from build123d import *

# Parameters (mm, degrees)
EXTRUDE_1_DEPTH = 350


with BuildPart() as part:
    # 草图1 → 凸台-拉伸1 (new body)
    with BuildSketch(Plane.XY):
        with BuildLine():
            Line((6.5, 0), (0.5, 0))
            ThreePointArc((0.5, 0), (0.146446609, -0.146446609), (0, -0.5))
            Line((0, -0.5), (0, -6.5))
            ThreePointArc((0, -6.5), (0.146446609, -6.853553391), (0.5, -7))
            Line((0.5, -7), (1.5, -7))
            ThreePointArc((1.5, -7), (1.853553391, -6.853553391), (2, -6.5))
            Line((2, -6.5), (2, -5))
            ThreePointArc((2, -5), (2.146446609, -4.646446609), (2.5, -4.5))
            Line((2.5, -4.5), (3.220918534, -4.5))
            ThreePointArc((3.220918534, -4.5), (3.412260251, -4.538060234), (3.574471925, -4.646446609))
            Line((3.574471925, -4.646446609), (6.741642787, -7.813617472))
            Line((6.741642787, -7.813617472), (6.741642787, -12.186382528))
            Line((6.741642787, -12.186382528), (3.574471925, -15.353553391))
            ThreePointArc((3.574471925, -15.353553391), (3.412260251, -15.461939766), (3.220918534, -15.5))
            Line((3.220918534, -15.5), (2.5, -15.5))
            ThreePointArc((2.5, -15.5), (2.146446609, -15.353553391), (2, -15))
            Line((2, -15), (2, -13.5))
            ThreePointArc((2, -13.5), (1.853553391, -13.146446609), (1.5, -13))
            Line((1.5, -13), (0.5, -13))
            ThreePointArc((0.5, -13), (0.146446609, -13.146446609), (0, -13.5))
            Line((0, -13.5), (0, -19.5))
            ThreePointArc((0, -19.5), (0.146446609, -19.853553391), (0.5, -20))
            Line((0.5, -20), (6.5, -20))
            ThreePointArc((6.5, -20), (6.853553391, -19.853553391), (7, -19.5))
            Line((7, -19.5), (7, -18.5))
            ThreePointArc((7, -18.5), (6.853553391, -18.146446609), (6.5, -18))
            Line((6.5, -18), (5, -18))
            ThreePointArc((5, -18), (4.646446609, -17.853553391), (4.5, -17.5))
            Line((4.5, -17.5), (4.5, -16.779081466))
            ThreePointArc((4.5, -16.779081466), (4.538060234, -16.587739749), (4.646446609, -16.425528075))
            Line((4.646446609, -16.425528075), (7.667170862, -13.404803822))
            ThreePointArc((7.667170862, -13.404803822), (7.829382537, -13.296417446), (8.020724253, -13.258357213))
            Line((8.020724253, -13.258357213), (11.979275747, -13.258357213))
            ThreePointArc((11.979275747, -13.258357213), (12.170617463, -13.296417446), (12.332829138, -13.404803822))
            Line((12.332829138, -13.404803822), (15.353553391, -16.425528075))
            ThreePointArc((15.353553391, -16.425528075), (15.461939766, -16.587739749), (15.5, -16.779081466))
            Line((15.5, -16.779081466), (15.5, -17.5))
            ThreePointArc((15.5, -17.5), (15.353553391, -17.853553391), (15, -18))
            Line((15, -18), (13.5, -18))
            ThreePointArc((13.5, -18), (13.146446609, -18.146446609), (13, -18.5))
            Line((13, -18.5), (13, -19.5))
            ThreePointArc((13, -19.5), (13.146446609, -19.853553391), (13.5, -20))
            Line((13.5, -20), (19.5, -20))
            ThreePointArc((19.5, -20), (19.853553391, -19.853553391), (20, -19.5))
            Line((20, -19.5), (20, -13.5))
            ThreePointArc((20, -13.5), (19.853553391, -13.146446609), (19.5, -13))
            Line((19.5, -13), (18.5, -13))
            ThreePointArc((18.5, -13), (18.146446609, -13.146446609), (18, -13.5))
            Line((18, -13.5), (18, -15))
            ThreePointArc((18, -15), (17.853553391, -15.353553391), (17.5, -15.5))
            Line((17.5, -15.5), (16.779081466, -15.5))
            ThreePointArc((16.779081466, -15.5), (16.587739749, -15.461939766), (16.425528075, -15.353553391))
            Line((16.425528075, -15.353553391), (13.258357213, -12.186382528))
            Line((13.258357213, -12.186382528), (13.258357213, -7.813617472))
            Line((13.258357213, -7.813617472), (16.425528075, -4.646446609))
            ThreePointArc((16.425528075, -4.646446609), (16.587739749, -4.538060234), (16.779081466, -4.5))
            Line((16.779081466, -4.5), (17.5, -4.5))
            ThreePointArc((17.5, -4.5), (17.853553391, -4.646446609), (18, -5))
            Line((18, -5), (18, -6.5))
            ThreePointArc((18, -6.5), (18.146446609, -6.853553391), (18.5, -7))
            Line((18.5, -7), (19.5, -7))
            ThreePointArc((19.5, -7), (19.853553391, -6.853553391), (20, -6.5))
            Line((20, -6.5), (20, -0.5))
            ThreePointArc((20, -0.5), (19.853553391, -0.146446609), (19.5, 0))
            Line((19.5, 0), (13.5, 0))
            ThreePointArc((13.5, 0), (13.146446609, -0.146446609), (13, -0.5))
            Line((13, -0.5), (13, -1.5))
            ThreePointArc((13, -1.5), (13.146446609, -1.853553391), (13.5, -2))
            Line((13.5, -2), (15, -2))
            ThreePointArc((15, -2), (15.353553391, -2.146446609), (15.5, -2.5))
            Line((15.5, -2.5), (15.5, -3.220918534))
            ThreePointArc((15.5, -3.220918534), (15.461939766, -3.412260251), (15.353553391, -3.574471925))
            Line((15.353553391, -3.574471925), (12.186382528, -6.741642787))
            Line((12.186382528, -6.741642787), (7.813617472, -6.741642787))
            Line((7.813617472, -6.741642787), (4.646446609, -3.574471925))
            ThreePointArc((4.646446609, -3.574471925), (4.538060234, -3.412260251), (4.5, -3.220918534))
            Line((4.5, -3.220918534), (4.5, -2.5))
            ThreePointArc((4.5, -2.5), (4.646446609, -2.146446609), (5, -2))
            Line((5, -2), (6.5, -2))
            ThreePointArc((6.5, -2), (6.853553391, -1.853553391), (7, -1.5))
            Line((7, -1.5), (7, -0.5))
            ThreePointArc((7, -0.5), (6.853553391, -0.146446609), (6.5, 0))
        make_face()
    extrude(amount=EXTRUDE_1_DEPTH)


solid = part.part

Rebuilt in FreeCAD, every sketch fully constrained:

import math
import FreeCAD as App
import Part
import Sketcher

V = App.Vector
Q = App.Units.Quantity

doc = App.newDocument("Part")
params = doc.addObject("Spreadsheet::Sheet", "Params")
for row, (alias, value) in enumerate([
    ("sketch1_radius", "0.5 mm"),
    ("sketch1_width", "6 mm"),
    ("sketch1_width2", "1 mm"),
    ("sketch1_width3", "1.5 mm"),
    ("pad1_length", "350 mm"),
], start=1):
    params.set(f"A{row}", alias)
    params.set(f"B{row}", "=" + value)
    params.setAlias(f"B{row}", alias)

body = doc.addObject("PartDesign::Body", "Body")

# Sketch on XY plane
sketch1 = body.newObject("Sketcher::SketchObject", "Sketch")
sketch1.AttachmentSupport = (doc.getObject("XY_Plane"), [""])
sketch1.MapMode = "FlatFace"
sketch1.addGeometry([
    Part.LineSegment(V(6.5, 0, 0), V(0.5, 0, 0)),  # 0
    Part.ArcOfCircle(Part.Circle(V(0.5, -0.5, 0), V(0, 0, 1), 0.5), math.radians(90), math.radians(180)),  # 1
    Part.LineSegment(V(0, -0.5, 0), V(0, -6.5, 0)),  # 2
    Part.ArcOfCircle(Part.Circle(V(0.5, -6.5, 0), V(0, 0, 1), 0.5), math.radians(180), math.radians(270)),  # 3
    Part.LineSegment(V(0.5, -7, 0), V(1.5, -7, 0)),  # 4
    Part.ArcOfCircle(Part.Circle(V(1.5, -6.5, 0), V(0, 0, 1), 0.5), math.radians(-90), math.radians(0)),  # 5
    Part.LineSegment(V(2, -6.5, 0), V(2, -5, 0)),  # 6
    Part.ArcOfCircle(Part.Circle(V(2.5, -5, 0), V(0, 0, 1), 0.5), math.radians(90), math.radians(180)),  # 7
    Part.LineSegment(V(2.5, -4.5, 0), V(3.220919, -4.5, 0)),  # 8
    Part.ArcOfCircle(Part.Circle(V(3.220919, -5, 0), V(0, 0, 1), 0.5), math.radians(45), math.radians(90)),  # 9
    Part.LineSegment(V(3.574472, -4.646447, 0), V(6.741643, -7.813617, 0)),  # 10
    Part.LineSegment(V(6.741643, -7.813617, 0), V(6.741643, -12.186383, 0)),  # 11
    Part.LineSegment(V(6.741643, -12.186383, 0), V(3.574472, -15.353553, 0)),  # 12
    Part.ArcOfCircle(Part.Circle(V(3.220919, -15, 0), V(0, 0, 1), 0.5), math.radians(-90), math.radians(-45)),  # 13
    Part.LineSegment(V(3.220919, -15.5, 0), V(2.5, -15.5, 0)),  # 14
    Part.ArcOfCircle(Part.Circle(V(2.5, -15, 0), V(0, 0, 1), 0.5), math.radians(180), math.radians(270)),  # 15
    Part.LineSegment(V(2, -15, 0), V(2, -13.5, 0)),  # 16
    Part.ArcOfCircle(Part.Circle(V(1.5, -13.5, 0), V(0, 0, 1), 0.5), math.radians(0), math.radians(90)),  # 17
    Part.LineSegment(V(1.5, -13, 0), V(0.5, -13, 0)),  # 18
    Part.ArcOfCircle(Part.Circle(V(0.5, -13.5, 0), V(0, 0, 1), 0.5), math.radians(90), math.radians(180)),  # 19
    Part.LineSegment(V(0, -13.5, 0), V(0, -19.5, 0)),  # 20
    Part.ArcOfCircle(Part.Circle(V(0.5, -19.5, 0), V(0, 0, 1), 0.5), math.radians(180), math.radians(270)),  # 21
    Part.LineSegment(V(0.5, -20, 0), V(6.5, -20, 0)),  # 22
    Part.ArcOfCircle(Part.Circle(V(6.5, -19.5, 0), V(0, 0, 1), 0.5), math.radians(-90), math.radians(0)),  # 23
    Part.LineSegment(V(7, -19.5, 0), V(7, -18.5, 0)),  # 24
    Part.ArcOfCircle(Part.Circle(V(6.5, -18.5, 0), V(0, 0, 1), 0.5), math.radians(0), math.radians(90)),  # 25
    Part.LineSegment(V(6.5, -18, 0), V(5, -18, 0)),  # 26
    Part.ArcOfCircle(Part.Circle(V(5, -17.5, 0), V(0, 0, 1), 0.5), math.radians(180), math.radians(270)),  # 27
    Part.LineSegment(V(4.5, -17.5, 0), V(4.5, -16.779081, 0)),  # 28
    Part.ArcOfCircle(Part.Circle(V(5, -16.779081, 0), V(0, 0, 1), 0.5), math.radians(135), math.radians(180)),  # 29
    Part.LineSegment(V(4.646447, -16.425528, 0), V(7.667171, -13.404804, 0)),  # 30
    Part.ArcOfCircle(Part.Circle(V(8.020724, -13.758357, 0), V(0, 0, 1), 0.5), math.radians(90), math.radians(135)),  # 31
    Part.LineSegment(V(8.020724, -13.258357, 0), V(11.979276, -13.258357, 0)),  # 32
    Part.ArcOfCircle(Part.Circle(V(11.979276, -13.758357, 0), V(0, 0, 1), 0.5), math.radians(45), math.radians(90)),  # 33
    Part.LineSegment(V(12.332829, -13.404804, 0), V(15.353553, -16.425528, 0)),  # 34
    Part.ArcOfCircle(Part.Circle(V(15, -16.779081, 0), V(0, 0, 1), 0.5), math.radians(0), math.radians(45)),  # 35
    Part.LineSegment(V(15.5, -16.779081, 0), V(15.5, -17.5, 0)),  # 36
    Part.ArcOfCircle(Part.Circle(V(15, -17.5, 0), V(0, 0, 1), 0.5), math.radians(-90), math.radians(0)),  # 37
    Part.LineSegment(V(15, -18, 0), V(13.5, -18, 0)),  # 38
    Part.ArcOfCircle(Part.Circle(V(13.5, -18.5, 0), V(0, 0, 1), 0.5), math.radians(90), math.radians(180)),  # 39
    Part.LineSegment(V(13, -18.5, 0), V(13, -19.5, 0)),  # 40
    Part.ArcOfCircle(Part.Circle(V(13.5, -19.5, 0), V(0, 0, 1), 0.5), math.radians(180), math.radians(270)),  # 41
    Part.LineSegment(V(13.5, -20, 0), V(19.5, -20, 0)),  # 42
    Part.ArcOfCircle(Part.Circle(V(19.5, -19.5, 0), V(0, 0, 1), 0.5), math.radians(-90), math.radians(0)),  # 43
    Part.LineSegment(V(20, -19.5, 0), V(20, -13.5, 0)),  # 44
    Part.ArcOfCircle(Part.Circle(V(19.5, -13.5, 0), V(0, 0, 1), 0.5), math.radians(0), math.radians(90)),  # 45
    Part.LineSegment(V(19.5, -13, 0), V(18.5, -13, 0)),  # 46
    Part.ArcOfCircle(Part.Circle(V(18.5, -13.5, 0), V(0, 0, 1), 0.5), math.radians(90), math.radians(180)),  # 47
    Part.LineSegment(V(18, -13.5, 0), V(18, -15, 0)),  # 48
    Part.ArcOfCircle(Part.Circle(V(17.5, -15, 0), V(0, 0, 1), 0.5), math.radians(-90), math.radians(0)),  # 49
    Part.LineSegment(V(17.5, -15.5, 0), V(16.779081, -15.5, 0)),  # 50
    Part.ArcOfCircle(Part.Circle(V(16.779081, -15, 0), V(0, 0, 1), 0.5), math.radians(-135), math.radians(-90)),  # 51
    Part.LineSegment(V(16.425528, -15.353553, 0), V(13.258357, -12.186383, 0)),  # 52
    Part.LineSegment(V(13.258357, -12.186383, 0), V(13.258357, -7.813617, 0)),  # 53
    Part.LineSegment(V(13.258357, -7.813617, 0), V(16.425528, -4.646447, 0)),  # 54
    Part.ArcOfCircle(Part.Circle(V(16.779081, -5, 0), V(0, 0, 1), 0.5), math.radians(90), math.radians(135)),  # 55
    Part.LineSegment(V(16.779081, -4.5, 0), V(17.5, -4.5, 0)),  # 56
    Part.ArcOfCircle(Part.Circle(V(17.5, -5, 0), V(0, 0, 1), 0.5), math.radians(0), math.radians(90)),  # 57
    Part.LineSegment(V(18, -5, 0), V(18, -6.5, 0)),  # 58
    Part.ArcOfCircle(Part.Circle(V(18.5, -6.5, 0), V(0, 0, 1), 0.5), math.radians(180), math.radians(270)),  # 59
    Part.LineSegment(V(18.5, -7, 0), V(19.5, -7, 0)),  # 60
    Part.ArcOfCircle(Part.Circle(V(19.5, -6.5, 0), V(0, 0, 1), 0.5), math.radians(-90), math.radians(0)),  # 61
    Part.LineSegment(V(20, -6.5, 0), V(20, -0.5, 0)),  # 62
    Part.ArcOfCircle(Part.Circle(V(19.5, -0.5, 0), V(0, 0, 1), 0.5), math.radians(0), math.radians(90)),  # 63
    Part.LineSegment(V(19.5, 0, 0), V(13.5, 0, 0)),  # 64
    Part.ArcOfCircle(Part.Circle(V(13.5, -0.5, 0), V(0, 0, 1), 0.5), math.radians(90), math.radians(180)),  # 65
    Part.LineSegment(V(13, -0.5, 0), V(13, -1.5, 0)),  # 66
    Part.ArcOfCircle(Part.Circle(V(13.5, -1.5, 0), V(0, 0, 1), 0.5), math.radians(180), math.radians(270)),  # 67
    Part.LineSegment(V(13.5, -2, 0), V(15, -2, 0)),  # 68
    Part.ArcOfCircle(Part.Circle(V(15, -2.5, 0), V(0, 0, 1), 0.5), math.radians(0), math.radians(90)),  # 69
    Part.LineSegment(V(15.5, -2.5, 0), V(15.5, -3.220919, 0)),  # 70
    Part.ArcOfCircle(Part.Circle(V(15, -3.220919, 0), V(0, 0, 1), 0.5), math.radians(-45), math.radians(0)),  # 71
    Part.LineSegment(V(15.353553, -3.574472, 0), V(12.186383, -6.741643, 0)),  # 72
    Part.LineSegment(V(12.186383, -6.741643, 0), V(7.813617, -6.741643, 0)),  # 73
    Part.LineSegment(V(7.813617, -6.741643, 0), V(4.646447, -3.574472, 0)),  # 74
    Part.ArcOfCircle(Part.Circle(V(5, -3.220919, 0), V(0, 0, 1), 0.5), math.radians(180), math.radians(225)),  # 75
    Part.LineSegment(V(4.5, -3.220919, 0), V(4.5, -2.5, 0)),  # 76
    Part.ArcOfCircle(Part.Circle(V(5, -2.5, 0), V(0, 0, 1), 0.5), math.radians(90), math.radians(180)),  # 77
    Part.LineSegment(V(5, -2, 0), V(6.5, -2, 0)),  # 78
    Part.ArcOfCircle(Part.Circle(V(6.5, -1.5, 0), V(0, 0, 1), 0.5), math.radians(-90), math.radians(0)),  # 79
    Part.LineSegment(V(7, -1.5, 0), V(7, -0.5, 0)),  # 80
    Part.ArcOfCircle(Part.Circle(V(6.5, -0.5, 0), V(0, 0, 1), 0.5), math.radians(0), math.radians(90)),  # 81
], False)
sketch1.addConstraint([
    Sketcher.Constraint("Tangent", 0, 2, 1, 1),
    Sketcher.Constraint("Tangent", 1, 2, 2, 1),
    Sketcher.Constraint("Tangent", 2, 2, 3, 1),
    Sketcher.Constraint("Tangent", 3, 2, 4, 1),
    Sketcher.Constraint("Tangent", 4, 2, 5, 1),
    Sketcher.Constraint("Tangent", 5, 2, 6, 1),
    Sketcher.Constraint("Tangent", 6, 2, 7, 2),
    Sketcher.Constraint("Tangent", 7, 1, 8, 1),
    Sketcher.Constraint("Tangent", 8, 2, 9, 2),
    Sketcher.Constraint("Tangent", 9, 1, 10, 1),
    Sketcher.Constraint("Coincident", 10, 2, 11, 1),
    Sketcher.Constraint("Coincident", 11, 2, 12, 1),
    Sketcher.Constraint("Tangent", 12, 2, 13, 2),
    Sketcher.Constraint("Tangent", 13, 1, 14, 1),
    Sketcher.Constraint("Tangent", 14, 2, 15, 2),
    Sketcher.Constraint("Tangent", 15, 1, 16, 1),
    Sketcher.Constraint("Tangent", 16, 2, 17, 1),
    Sketcher.Constraint("Tangent", 17, 2, 18, 1),
    Sketcher.Constraint("Tangent", 18, 2, 19, 1),
    Sketcher.Constraint("Tangent", 19, 2, 20, 1),
    Sketcher.Constraint("Tangent", 20, 2, 21, 1),
    Sketcher.Constraint("Tangent", 21, 2, 22, 1),
    Sketcher.Constraint("Tangent", 22, 2, 23, 1),
    Sketcher.Constraint("Tangent", 23, 2, 24, 1),
    Sketcher.Constraint("Tangent", 24, 2, 25, 1),
    Sketcher.Constraint("Tangent", 25, 2, 26, 1),
    Sketcher.Constraint("Tangent", 26, 2, 27, 2),
    Sketcher.Constraint("Tangent", 27, 1, 28, 1),
    Sketcher.Constraint("Tangent", 28, 2, 29, 2),
    Sketcher.Constraint("Tangent", 29, 1, 30, 1),
    Sketcher.Constraint("Tangent", 30, 2, 31, 2),
    Sketcher.Constraint("Tangent", 31, 1, 32, 1),
    Sketcher.Constraint("Tangent", 32, 2, 33, 2),
    Sketcher.Constraint("Tangent", 33, 1, 34, 1),
    Sketcher.Constraint("Tangent", 34, 2, 35, 2),
    Sketcher.Constraint("Tangent", 35, 1, 36, 1),
    Sketcher.Constraint("Tangent", 36, 2, 37, 2),
    Sketcher.Constraint("Tangent", 37, 1, 38, 1),
    Sketcher.Constraint("Tangent", 38, 2, 39, 1),
    Sketcher.Constraint("Tangent", 39, 2, 40, 1),
    Sketcher.Constraint("Tangent", 40, 2, 41, 1),
    Sketcher.Constraint("Tangent", 41, 2, 42, 1),
    Sketcher.Constraint("Tangent", 42, 2, 43, 1),
    Sketcher.Constraint("Tangent", 43, 2, 44, 1),
    Sketcher.Constraint("Tangent", 44, 2, 45, 1),
    Sketcher.Constraint("Tangent", 45, 2, 46, 1),
    Sketcher.Constraint("Tangent", 46, 2, 47, 1),
    Sketcher.Constraint("Tangent", 47, 2, 48, 1),
    Sketcher.Constraint("Tangent", 48, 2, 49, 2),
    Sketcher.Constraint("Tangent", 49, 1, 50, 1),
    Sketcher.Constraint("Tangent", 50, 2, 51, 2),
    Sketcher.Constraint("Tangent", 51, 1, 52, 1),
    Sketcher.Constraint("Coincident", 52, 2, 53, 1),
    Sketcher.Constraint("Coincident", 53, 2, 54, 1),
    Sketcher.Constraint("Tangent", 54, 2, 55, 2),
    Sketcher.Constraint("Tangent", 55, 1, 56, 1),
    Sketcher.Constraint("Tangent", 56, 2, 57, 2),
    Sketcher.Constraint("Tangent", 57, 1, 58, 1),
    Sketcher.Constraint("Tangent", 58, 2, 59, 1),
    Sketcher.Constraint("Tangent", 59, 2, 60, 1),
    Sketcher.Constraint("Tangent", 60, 2, 61, 1),
    Sketcher.Constraint("Tangent", 61, 2, 62, 1),
    Sketcher.Constraint("Tangent", 62, 2, 63, 1),
    Sketcher.Constraint("Tangent", 63, 2, 64, 1),
    Sketcher.Constraint("Tangent", 64, 2, 65, 1),
    Sketcher.Constraint("Tangent", 65, 2, 66, 1),
    Sketcher.Constraint("Tangent", 66, 2, 67, 1),
    Sketcher.Constraint("Tangent", 67, 2, 68, 1),
    Sketcher.Constraint("Tangent", 68, 2, 69, 2),
    Sketcher.Constraint("Tangent", 69, 1, 70, 1),
    Sketcher.Constraint("Tangent", 70, 2, 71, 2),
    Sketcher.Constraint("Tangent", 71, 1, 72, 1),
    Sketcher.Constraint("Coincident", 72, 2, 73, 1),
    Sketcher.Constraint("Coincident", 73, 2, 74, 1),
    Sketcher.Constraint("Tangent", 74, 2, 75, 2),
    Sketcher.Constraint("Tangent", 75, 1, 76, 1),
    Sketcher.Constraint("Tangent", 76, 2, 77, 2),
    Sketcher.Constraint("Tangent", 77, 1, 78, 1),
    Sketcher.Constraint("Tangent", 78, 2, 79, 1),
    Sketcher.Constraint("Tangent", 79, 2, 80, 1),
    Sketcher.Constraint("Tangent", 80, 2, 81, 1),
    Sketcher.Constraint("Tangent", 81, 2, 0, 1),
    Sketcher.Constraint("Horizontal", 0),
    Sketcher.Constraint("Vertical", 2),
    Sketcher.Constraint("Horizontal", 4),
    Sketcher.Constraint("Vertical", 6),
    Sketcher.Constraint("Horizontal", 8),
    Sketcher.Constraint("Vertical", 11),
    Sketcher.Constraint("Horizontal", 14),
    Sketcher.Constraint("Vertical", 16),
    Sketcher.Constraint("Horizontal", 18),
    Sketcher.Constraint("Vertical", 20),
    Sketcher.Constraint("Horizontal", 22),
    Sketcher.Constraint("Vertical", 24),
    Sketcher.Constraint("Horizontal", 26),
    Sketcher.Constraint("Vertical", 28),
    Sketcher.Constraint("Horizontal", 32),
    Sketcher.Constraint("Vertical", 36),
    Sketcher.Constraint("Horizontal", 38),
    Sketcher.Constraint("Vertical", 40),
    Sketcher.Constraint("Horizontal", 42),
    Sketcher.Constraint("Vertical", 44),
    Sketcher.Constraint("Horizontal", 46),
    Sketcher.Constraint("Vertical", 48),
    Sketcher.Constraint("Horizontal", 50),
    Sketcher.Constraint("Vertical", 53),
    Sketcher.Constraint("Horizontal", 56),
    Sketcher.Constraint("Vertical", 58),
    Sketcher.Constraint("Horizontal", 60),
    Sketcher.Constraint("Vertical", 62),
    Sketcher.Constraint("Horizontal", 64),
    Sketcher.Constraint("Vertical", 66),
    Sketcher.Constraint("Horizontal", 68),
    Sketcher.Constraint("Vertical", 70),
    Sketcher.Constraint("Horizontal", 73),
    Sketcher.Constraint("Vertical", 76),
    Sketcher.Constraint("Horizontal", 78),
    Sketcher.Constraint("Vertical", 80),
    Sketcher.Constraint("Equal", 1, 3),
    Sketcher.Constraint("Equal", 3, 5),
    Sketcher.Constraint("Equal", 5, 7),
    Sketcher.Constraint("Equal", 7, 9),
    Sketcher.Constraint("Equal", 9, 13),
    Sketcher.Constraint("Equal", 13, 15),
    Sketcher.Constraint("Equal", 15, 17),
    Sketcher.Constraint("Equal", 17, 19),
    Sketcher.Constraint("Equal", 19, 21),
    Sketcher.Constraint("Equal", 21, 23),
    Sketcher.Constraint("Equal", 23, 25),
    Sketcher.Constraint("Equal", 25, 27),
    Sketcher.Constraint("Equal", 27, 29),
    Sketcher.Constraint("Equal", 29, 31),
    Sketcher.Constraint("Equal", 31, 33),
    Sketcher.Constraint("Equal", 33, 35),
    Sketcher.Constraint("Equal", 35, 37),
    Sketcher.Constraint("Equal", 37, 39),
    Sketcher.Constraint("Equal", 39, 41),
    Sketcher.Constraint("Equal", 41, 43),
    Sketcher.Constraint("Equal", 43, 45),
    Sketcher.Constraint("Equal", 45, 47),
    Sketcher.Constraint("Equal", 47, 49),
    Sketcher.Constraint("Equal", 49, 51),
    Sketcher.Constraint("Equal", 51, 55),
    Sketcher.Constraint("Equal", 55, 57),
    Sketcher.Constraint("Equal", 57, 59),
    Sketcher.Constraint("Equal", 59, 61),
    Sketcher.Constraint("Equal", 61, 63),
    Sketcher.Constraint("Equal", 63, 65),
    Sketcher.Constraint("Equal", 65, 67),
    Sketcher.Constraint("Equal", 67, 69),
    Sketcher.Constraint("Equal", 69, 71),
    Sketcher.Constraint("Equal", 71, 75),
    Sketcher.Constraint("Equal", 75, 77),
    Sketcher.Constraint("Equal", 77, 79),
    Sketcher.Constraint("Equal", 79, 81),
    Sketcher.Constraint("PointOnObject", 0, 2, -1),
    Sketcher.Constraint("PointOnObject", 1, 2, -2),
    Sketcher.Constraint("PointOnObject", 19, 2, -2),
    Sketcher.Constraint("PointOnObject", 63, 2, -1),
    Sketcher.Constraint("Perpendicular", 10, 12),
    Sketcher.Constraint("Parallel", 12, 30),
    Sketcher.Constraint("Perpendicular", 30, 34),
    Sketcher.Constraint("Parallel", 34, 52),
    Sketcher.Constraint("Perpendicular", 52, 54),
    Sketcher.Constraint("Parallel", 54, 72),
    Sketcher.Constraint("Perpendicular", 72, 74),
    Sketcher.Constraint("Horizontal", 29, 3, 35, 3),
    Sketcher.Constraint("Horizontal", 27, 3, 37, 3),
    Sketcher.Constraint("Horizontal", 23, 3, 41, 3),
    Sketcher.Constraint("Horizontal", 19, 3, 45, 3),
    Sketcher.Constraint("Horizontal", 15, 3, 49, 3),
    Sketcher.Constraint("Horizontal", 9, 3, 55, 3),
    Sketcher.Constraint("Horizontal", 5, 3, 59, 3),
    Sketcher.Constraint("Horizontal", 71, 3, 75, 3),
    Sketcher.Constraint("Horizontal", 69, 3, 77, 3),
    Sketcher.Constraint("Horizontal", 30, 2, 33, 1),
    Sketcher.Constraint("Horizontal", 11, 2, 52, 2),
    Sketcher.Constraint("Horizontal", 10, 2, 53, 2),
    Sketcher.Constraint("Vertical", 9, 3, 13, 3),
    Sketcher.Constraint("Vertical", 7, 3, 15, 3),
    Sketcher.Constraint("Vertical", 49, 3, 57, 3),
    Sketcher.Constraint("Vertical", 45, 3, 61, 3),
    Sketcher.Constraint("Vertical", 41, 3, 65, 3),
    Sketcher.Constraint("Vertical", 37, 3, 69, 3),
    Sketcher.Constraint("Vertical", 29, 3, 75, 3),
    Sketcher.Constraint("Vertical", 25, 3, 79, 3),
    Sketcher.Constraint("Equal", 26, 38),
    Sketcher.Constraint("Equal", 22, 42),
    Sketcher.Constraint("Equal", 18, 46),
    Sketcher.Constraint("Equal", 14, 50),
    Sketcher.Constraint("Equal", 64, 2),
    Sketcher.Constraint("Equal", 78, 6),
    Sketcher.Constraint("Equal", 73, 11),
    Sketcher.Constraint("Equal", 6, 16),
    Sketcher.Constraint("Equal", 2, 20),
    Sketcher.Constraint("Equal", 60, 24),
    Sketcher.Constraint("Equal", 56, 28),
    Sketcher.Constraint("Equal", 40, 66),
    Sketcher.Constraint("Equal", 36, 70),
    Sketcher.Constraint("Equal", 54, 72),
    Sketcher.Constraint("Radius", 1, Q("0.5 mm")),
    Sketcher.Constraint("DistanceX", 0, 2, 0, 1, Q("6 mm")),
    Sketcher.Constraint("DistanceX", 4, 1, 4, 2, Q("1 mm")),
    Sketcher.Constraint("DistanceX", 26, 2, 26, 1, Q("1.5 mm")),
    Sketcher.Constraint("DistanceY", 13, 3, -1, 1, Q("15 mm")),
    Sketcher.Constraint("DistanceX", 8, 1, 8, 2, Q("0.720919 mm")),
    Sketcher.Constraint("DistanceX", 32, 1, 32, 2, Q("3.958551 mm")),
    Sketcher.Constraint("DistanceX", 73, 2, 73, 1, Q("4.372765 mm")),
])
sketch1.setExpression("Constraints[200]", "Params.sketch1_radius")
sketch1.setExpression("Constraints[201]", "Params.sketch1_width")
sketch1.setExpression("Constraints[202]", "Params.sketch1_width2")
sketch1.setExpression("Constraints[203]", "Params.sketch1_width3")
pad1 = body.newObject("PartDesign::Pad", "Pad")
pad1.Profile = sketch1
pad1.setExpression("Length", "Params.pad1_length")

doc.recompute()
